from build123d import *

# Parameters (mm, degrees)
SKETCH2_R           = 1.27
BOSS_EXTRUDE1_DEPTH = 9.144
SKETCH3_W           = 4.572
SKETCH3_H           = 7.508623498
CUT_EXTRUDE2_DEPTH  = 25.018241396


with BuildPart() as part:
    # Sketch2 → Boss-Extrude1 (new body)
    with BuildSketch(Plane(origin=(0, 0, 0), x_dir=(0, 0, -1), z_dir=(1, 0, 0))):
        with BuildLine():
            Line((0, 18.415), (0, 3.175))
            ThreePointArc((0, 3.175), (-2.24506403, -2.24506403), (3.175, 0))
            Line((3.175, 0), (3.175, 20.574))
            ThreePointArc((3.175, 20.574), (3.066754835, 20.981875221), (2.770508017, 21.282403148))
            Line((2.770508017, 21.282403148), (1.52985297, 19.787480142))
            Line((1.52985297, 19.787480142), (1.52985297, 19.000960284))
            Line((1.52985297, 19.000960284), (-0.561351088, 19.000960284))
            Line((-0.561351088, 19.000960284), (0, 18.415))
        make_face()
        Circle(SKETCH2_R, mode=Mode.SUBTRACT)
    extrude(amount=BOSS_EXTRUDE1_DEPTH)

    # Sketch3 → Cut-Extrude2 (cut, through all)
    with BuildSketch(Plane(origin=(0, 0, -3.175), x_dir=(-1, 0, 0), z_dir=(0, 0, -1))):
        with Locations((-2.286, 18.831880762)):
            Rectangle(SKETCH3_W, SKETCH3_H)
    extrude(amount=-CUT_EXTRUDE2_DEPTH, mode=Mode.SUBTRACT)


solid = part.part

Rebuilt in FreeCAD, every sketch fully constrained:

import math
import FreeCAD as App
import Part
import Sketcher
Q = App.Units.Quantity


def add_polygon(sketch, points):
    """Adds a closed chain of lines whose ends are joined by coincident constraints."""
    first, n = sketch.GeometryCount, len(points)
    for a, b in zip(points, points[1:] + points[:1]):
        sketch.addGeometry(Part.LineSegment(App.Vector(*a, 0), App.Vector(*b, 0)), False)
    for i in range(n):
        sketch.addConstraint(Sketcher.Constraint("Coincident", first + i, 2, first + (i + 1) % n, 1))

doc = App.newDocument("Part")
body = doc.addObject("PartDesign::Body", "Body")

sketch1 = body.newObject("Sketcher::SketchObject", "Sketch")
sketch1.AttachmentSupport = (doc.getObject("YZ_Plane"), [""])
sketch1.MapMode = "FlatFace"
sketch1.addGeometry([
    Part.LineSegment(App.Vector(18.4, 0, 0), App.Vector(3.2, 0, 0)),
    Part.ArcOfCircle(Part.Circle(App.Vector(0, 0, 0), App.Vector(0, 0, 1), 3.2), math.radians(0), math.radians(270)),
    Part.LineSegment(App.Vector(0, -3.2, 0), App.Vector(20.6, -3.2, 0)),
    Part.ArcOfCircle(Part.Circle(App.Vector(20.6, -2.4, 0), App.Vector(0, 0, 1), 0.8), math.radians(-90), math.radians(-31)),
    Part.LineSegment(App.Vector(21.3, -2.8, 0), App.Vector(19.8, -1.5, 0)),
    Part.LineSegment(App.Vector(19.8, -1.5, 0), App.Vector(19, -1.5, 0)),
    Part.LineSegment(App.Vector(19, -1.5, 0), App.Vector(19, 0.6, 0)),
    Part.LineSegment(App.Vector(19, 0.6, 0), App.Vector(18.4, 0, 0)),
    Part.Circle(App.Vector(0, 0, 0), App.Vector(0, 0, 1), 1.3),
], False)
sketch1.addConstraint([
    Sketcher.Constraint("Coincident", 0, 2, 1, 1),
    Sketcher.Constraint("Tangent", 1, 2, 2, 1),
    Sketcher.Constraint("Tangent", 2, 2, 3, 1),
    Sketcher.Constraint("Coincident", 3, 2, 4, 1),
    Sketcher.Constraint("Coincident", 4, 2, 5, 1),
    Sketcher.Constraint("Coincident", 5, 2, 6, 1),
    Sketcher.Constraint("Coincident", 6, 2, 7, 1),
    Sketcher.Constraint("Coincident", 7, 2, 0, 1),
    Sketcher.Constraint("Horizontal", 0),
    Sketcher.Constraint("Horizontal", 2),
    Sketcher.Constraint("Horizontal", 5),
    Sketcher.Constraint("Vertical", 6),
    Sketcher.Constraint("Coincident", 1, 3, -1, 1),
    Sketcher.Constraint("Coincident", 8, 3, -1, 1),
    Sketcher.Constraint("PointOnObject", 0, 2, -1),
    Sketcher.Constraint("Diameter", 8, Q("0.1 in")),
    Sketcher.Constraint("DistanceX", 0, 2, 0, 1, Q("0.6 in")),
    Sketcher.Constraint("Radius", 1, Q("0.125 in")),
    Sketcher.Constraint("DistanceX", 2, 1, 2, 2, Q("0.81 in")),
    Sketcher.Constraint("Radius", 3, 0.822574),
    Sketcher.Constraint("DistanceX", 5, 2, 5, 1, 0.78652),
    Sketcher.Constraint("Distance", 7, 0.811458),
    Sketcher.Constraint("DistanceY", 6, 1, 6, 2, 2.091204),
    Sketcher.Constraint("DistanceY", 3, 2, -1, 1, 2.770508),
    Sketcher.Constraint("DistanceX", -1, 1, 4, 2, 19.78748),
])
pad1 = body.newObject("PartDesign::Pad", "Pad")
pad1.Profile = sketch1
pad1.Length = Q("0.36 in")

sketch2 = body.newObject("Sketcher::SketchObject", "Sketch001")
sketch2.AttachmentSupport = (doc.getObject("XY_Plane"), [""])
sketch2.MapMode = "FlatFace"
sketch2.AttachmentOffset = App.Placement(App.Vector(0, 0, -0.125 * 25.4), App.Rotation())
add_polygon(sketch2, [(4.6, 22.6), (4.6, 15.1), (0, 15.1), (0, 22.6)])
sketch2.addConstraint([
    Sketcher.Constraint("Vertical", 0),
    Sketcher.Constraint("Horizontal", 1),
    Sketcher.Constraint("Vertical", 2),
    Sketcher.Constraint("Horizontal", 3),
    Sketcher.Constraint("PointOnObject", 1, 2, -2),
    Sketcher.Constraint("DistanceX", 1, 2, 1, 1, Q("0.18 in")),
    Sketcher.Constraint("DistanceY", 0, 2, 0, 1, 7.508623),
    Sketcher.Constraint("DistanceY", -1, 1, 0, 2, 15.077569),
])
pocket1 = body.newObject("PartDesign::Pocket", "Pocket")
pocket1.Profile = sketch2
pocket1.Type = "ThroughAll"
pocket1.Reversed = True

doc.recompute()
